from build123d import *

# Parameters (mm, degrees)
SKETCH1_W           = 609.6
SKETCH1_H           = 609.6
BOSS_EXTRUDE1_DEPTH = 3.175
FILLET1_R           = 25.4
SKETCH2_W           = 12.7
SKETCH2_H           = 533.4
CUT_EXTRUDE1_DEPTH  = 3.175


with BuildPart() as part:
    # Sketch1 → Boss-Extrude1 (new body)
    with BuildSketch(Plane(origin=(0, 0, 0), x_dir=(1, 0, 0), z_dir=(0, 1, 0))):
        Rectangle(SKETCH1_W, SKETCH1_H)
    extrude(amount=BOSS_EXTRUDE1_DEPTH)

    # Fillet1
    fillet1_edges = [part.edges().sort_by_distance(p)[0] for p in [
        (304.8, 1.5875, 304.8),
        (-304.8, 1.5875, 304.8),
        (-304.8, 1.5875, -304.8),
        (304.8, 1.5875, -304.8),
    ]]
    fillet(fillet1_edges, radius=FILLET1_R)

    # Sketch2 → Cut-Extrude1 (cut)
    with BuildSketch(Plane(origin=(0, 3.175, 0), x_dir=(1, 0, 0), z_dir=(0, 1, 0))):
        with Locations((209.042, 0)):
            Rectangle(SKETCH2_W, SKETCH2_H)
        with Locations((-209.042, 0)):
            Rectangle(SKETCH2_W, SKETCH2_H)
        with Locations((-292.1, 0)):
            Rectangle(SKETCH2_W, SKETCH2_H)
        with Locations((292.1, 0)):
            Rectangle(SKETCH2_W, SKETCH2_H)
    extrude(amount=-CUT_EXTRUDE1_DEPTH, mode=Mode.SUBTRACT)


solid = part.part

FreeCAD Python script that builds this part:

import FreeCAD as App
import Part
import Sketcher

V = App.Vector
Q = App.Units.Quantity


def edges_at(feature, points):
    """Names of the edges that pass closest to the given points."""
    edges = feature.Shape.Edges
    near = lambda p: min(range(len(edges)), key=lambda i: edges[i].distToShape(Part.Vertex(*p))[0])
    return sorted({f"Edge{near(p) + 1}" for p in points})


def add_polygon(sketch, points):
    """Adds a closed chain of lines whose ends are joined by coincident constraints."""
    first, n = sketch.GeometryCount, len(points)
    for a, b in zip(points, points[1:] + points[:1]):
        sketch.addGeometry(Part.LineSegment(App.Vector(*a, 0), App.Vector(*b, 0)), False)
    for i in range(n):
        sketch.addConstraint(Sketcher.Constraint("Coincident", first + i, 2, first + (i + 1) % n, 1))

doc = App.newDocument("Part")
body = doc.addObject("PartDesign::Body", "Body")

sketch1 = doc.addObject("Sketcher::SketchObject", "Sketch")
body.addObject(sketch1)
sketch1.AttachmentSupport = (doc.XZ_Plane, [""])
sketch1.MapMode = "FlatFace"
add_polygon(sketch1, [(-305, -305), (-305, 305), (305, 305), (305, -305)])
sketch1.addConstraint([
    Sketcher.Constraint("Vertical", 0),
    Sketcher.Constraint("Horizontal", 1),
    Sketcher.Constraint("Vertical", 2),
    Sketcher.Constraint("Horizontal", 3),
    Sketcher.Constraint("Symmetric", 0, 2, 2, 2, -1, 1),
    Sketcher.Constraint("Equal", 3, 0),
    Sketcher.Constraint("DistanceX", 1, 1, 1, 2, Q("24 in")),
])
pad1 = doc.addObject("PartDesign::Pad", "Pad")
body.addObject(pad1)
pad1.Profile = sketch1
pad1.Length = Q("0.125 in")
pad1.Reversed = True
doc.recompute()

fillet = doc.addObject("PartDesign::Fillet", "Fillet")
body.addObject(fillet)
fillet.Base = (pad1, edges_at(pad1, [
    (304.8, 1.587, 304.8),
    (-304.8, 1.587, 304.8),
    (-304.8, 1.587, -304.8),
    (304.8, 1.587, -304.8),
]))
fillet.Radius = Q("1 in")

sketch2 = doc.addObject("Sketcher::SketchObject", "Sketch001")
body.addObject(sketch2)
sketch2.AttachmentSupport = (doc.XZ_Plane, [""])
sketch2.MapMode = "FlatFace"
sketch2.AttachmentOffset = App.Placement(V(0, 0, -0.125 * 25.4), App.Rotation())
add_polygon(sketch2, [(203, -267), (203, 267), (215, 267), (215, -267)])
add_polygon(sketch2, [(-215, -267), (-215, 267), (-203, 267), (-203, -267)])
add_polygon(sketch2, [(-298, -267), (-298, 267), (-286, 267), (-286, -267)])
add_polygon(sketch2, [(286, -267), (286, 267), (298, 267), (298, -267)])
sketch2.addConstraint([
    Sketcher.Constraint("Vertical", 0),
    Sketcher.Constraint("Horizontal", 1),
    Sketcher.Constraint("Vertical", 2),
    Sketcher.Constraint("Horizontal", 3),
    Sketcher.Constraint("Vertical", 4),
    Sketcher.Constraint("Horizontal", 5),
    Sketcher.Constraint("Vertical", 6),
    Sketcher.Constraint("Horizontal", 7),
    Sketcher.Constraint("Vertical", 8),
    Sketcher.Constraint("Horizontal", 9),
    Sketcher.Constraint("Vertical", 10),
    Sketcher.Constraint("Horizontal", 11),
    Sketcher.Constraint("Vertical", 12),
    Sketcher.Constraint("Horizontal", 13),
    Sketcher.Constraint("Vertical", 14),
    Sketcher.Constraint("Horizontal", 15),
    Sketcher.Constraint("Symmetric", 2, 2, 4, 2, -1, 1),
    Sketcher.Constraint("Symmetric", 0, 2, 6, 2, -1, 1),
    Sketcher.Constraint("Symmetric", 10, 2, 12, 2, -1, 1),
    Sketcher.Constraint("Symmetric", 8, 2, 14, 2, -1, 1),
    Sketcher.Constraint("Horizontal", 1, 2, 4, 2),
    Sketcher.Constraint("Horizontal", 5, 2, 8, 2),
    Sketcher.Constraint("Horizontal", 7, 2, 10, 2),
    Sketcher.Constraint("Equal", 7, 9),
    Sketcher.Constraint("DistanceY", 0, 1, 0, 2, Q("21 in")),
    Sketcher.Constraint("DistanceX", 1, 1, 1, 2, Q("0.5 in")),
    Sketcher.Constraint("DistanceX", -1, 1, 0, 2, Q("7.98 in")),
    Sketcher.Constraint("DistanceX", 8, 2, -1, 1, Q("11.75 in")),
])
pocket1 = doc.addObject("PartDesign::Pocket", "Pocket")
body.addObject(pocket1)
pocket1.Profile = sketch2
pocket1.Length = Q("0.125 in")
pocket1.Reversed = True

doc.recompute()
